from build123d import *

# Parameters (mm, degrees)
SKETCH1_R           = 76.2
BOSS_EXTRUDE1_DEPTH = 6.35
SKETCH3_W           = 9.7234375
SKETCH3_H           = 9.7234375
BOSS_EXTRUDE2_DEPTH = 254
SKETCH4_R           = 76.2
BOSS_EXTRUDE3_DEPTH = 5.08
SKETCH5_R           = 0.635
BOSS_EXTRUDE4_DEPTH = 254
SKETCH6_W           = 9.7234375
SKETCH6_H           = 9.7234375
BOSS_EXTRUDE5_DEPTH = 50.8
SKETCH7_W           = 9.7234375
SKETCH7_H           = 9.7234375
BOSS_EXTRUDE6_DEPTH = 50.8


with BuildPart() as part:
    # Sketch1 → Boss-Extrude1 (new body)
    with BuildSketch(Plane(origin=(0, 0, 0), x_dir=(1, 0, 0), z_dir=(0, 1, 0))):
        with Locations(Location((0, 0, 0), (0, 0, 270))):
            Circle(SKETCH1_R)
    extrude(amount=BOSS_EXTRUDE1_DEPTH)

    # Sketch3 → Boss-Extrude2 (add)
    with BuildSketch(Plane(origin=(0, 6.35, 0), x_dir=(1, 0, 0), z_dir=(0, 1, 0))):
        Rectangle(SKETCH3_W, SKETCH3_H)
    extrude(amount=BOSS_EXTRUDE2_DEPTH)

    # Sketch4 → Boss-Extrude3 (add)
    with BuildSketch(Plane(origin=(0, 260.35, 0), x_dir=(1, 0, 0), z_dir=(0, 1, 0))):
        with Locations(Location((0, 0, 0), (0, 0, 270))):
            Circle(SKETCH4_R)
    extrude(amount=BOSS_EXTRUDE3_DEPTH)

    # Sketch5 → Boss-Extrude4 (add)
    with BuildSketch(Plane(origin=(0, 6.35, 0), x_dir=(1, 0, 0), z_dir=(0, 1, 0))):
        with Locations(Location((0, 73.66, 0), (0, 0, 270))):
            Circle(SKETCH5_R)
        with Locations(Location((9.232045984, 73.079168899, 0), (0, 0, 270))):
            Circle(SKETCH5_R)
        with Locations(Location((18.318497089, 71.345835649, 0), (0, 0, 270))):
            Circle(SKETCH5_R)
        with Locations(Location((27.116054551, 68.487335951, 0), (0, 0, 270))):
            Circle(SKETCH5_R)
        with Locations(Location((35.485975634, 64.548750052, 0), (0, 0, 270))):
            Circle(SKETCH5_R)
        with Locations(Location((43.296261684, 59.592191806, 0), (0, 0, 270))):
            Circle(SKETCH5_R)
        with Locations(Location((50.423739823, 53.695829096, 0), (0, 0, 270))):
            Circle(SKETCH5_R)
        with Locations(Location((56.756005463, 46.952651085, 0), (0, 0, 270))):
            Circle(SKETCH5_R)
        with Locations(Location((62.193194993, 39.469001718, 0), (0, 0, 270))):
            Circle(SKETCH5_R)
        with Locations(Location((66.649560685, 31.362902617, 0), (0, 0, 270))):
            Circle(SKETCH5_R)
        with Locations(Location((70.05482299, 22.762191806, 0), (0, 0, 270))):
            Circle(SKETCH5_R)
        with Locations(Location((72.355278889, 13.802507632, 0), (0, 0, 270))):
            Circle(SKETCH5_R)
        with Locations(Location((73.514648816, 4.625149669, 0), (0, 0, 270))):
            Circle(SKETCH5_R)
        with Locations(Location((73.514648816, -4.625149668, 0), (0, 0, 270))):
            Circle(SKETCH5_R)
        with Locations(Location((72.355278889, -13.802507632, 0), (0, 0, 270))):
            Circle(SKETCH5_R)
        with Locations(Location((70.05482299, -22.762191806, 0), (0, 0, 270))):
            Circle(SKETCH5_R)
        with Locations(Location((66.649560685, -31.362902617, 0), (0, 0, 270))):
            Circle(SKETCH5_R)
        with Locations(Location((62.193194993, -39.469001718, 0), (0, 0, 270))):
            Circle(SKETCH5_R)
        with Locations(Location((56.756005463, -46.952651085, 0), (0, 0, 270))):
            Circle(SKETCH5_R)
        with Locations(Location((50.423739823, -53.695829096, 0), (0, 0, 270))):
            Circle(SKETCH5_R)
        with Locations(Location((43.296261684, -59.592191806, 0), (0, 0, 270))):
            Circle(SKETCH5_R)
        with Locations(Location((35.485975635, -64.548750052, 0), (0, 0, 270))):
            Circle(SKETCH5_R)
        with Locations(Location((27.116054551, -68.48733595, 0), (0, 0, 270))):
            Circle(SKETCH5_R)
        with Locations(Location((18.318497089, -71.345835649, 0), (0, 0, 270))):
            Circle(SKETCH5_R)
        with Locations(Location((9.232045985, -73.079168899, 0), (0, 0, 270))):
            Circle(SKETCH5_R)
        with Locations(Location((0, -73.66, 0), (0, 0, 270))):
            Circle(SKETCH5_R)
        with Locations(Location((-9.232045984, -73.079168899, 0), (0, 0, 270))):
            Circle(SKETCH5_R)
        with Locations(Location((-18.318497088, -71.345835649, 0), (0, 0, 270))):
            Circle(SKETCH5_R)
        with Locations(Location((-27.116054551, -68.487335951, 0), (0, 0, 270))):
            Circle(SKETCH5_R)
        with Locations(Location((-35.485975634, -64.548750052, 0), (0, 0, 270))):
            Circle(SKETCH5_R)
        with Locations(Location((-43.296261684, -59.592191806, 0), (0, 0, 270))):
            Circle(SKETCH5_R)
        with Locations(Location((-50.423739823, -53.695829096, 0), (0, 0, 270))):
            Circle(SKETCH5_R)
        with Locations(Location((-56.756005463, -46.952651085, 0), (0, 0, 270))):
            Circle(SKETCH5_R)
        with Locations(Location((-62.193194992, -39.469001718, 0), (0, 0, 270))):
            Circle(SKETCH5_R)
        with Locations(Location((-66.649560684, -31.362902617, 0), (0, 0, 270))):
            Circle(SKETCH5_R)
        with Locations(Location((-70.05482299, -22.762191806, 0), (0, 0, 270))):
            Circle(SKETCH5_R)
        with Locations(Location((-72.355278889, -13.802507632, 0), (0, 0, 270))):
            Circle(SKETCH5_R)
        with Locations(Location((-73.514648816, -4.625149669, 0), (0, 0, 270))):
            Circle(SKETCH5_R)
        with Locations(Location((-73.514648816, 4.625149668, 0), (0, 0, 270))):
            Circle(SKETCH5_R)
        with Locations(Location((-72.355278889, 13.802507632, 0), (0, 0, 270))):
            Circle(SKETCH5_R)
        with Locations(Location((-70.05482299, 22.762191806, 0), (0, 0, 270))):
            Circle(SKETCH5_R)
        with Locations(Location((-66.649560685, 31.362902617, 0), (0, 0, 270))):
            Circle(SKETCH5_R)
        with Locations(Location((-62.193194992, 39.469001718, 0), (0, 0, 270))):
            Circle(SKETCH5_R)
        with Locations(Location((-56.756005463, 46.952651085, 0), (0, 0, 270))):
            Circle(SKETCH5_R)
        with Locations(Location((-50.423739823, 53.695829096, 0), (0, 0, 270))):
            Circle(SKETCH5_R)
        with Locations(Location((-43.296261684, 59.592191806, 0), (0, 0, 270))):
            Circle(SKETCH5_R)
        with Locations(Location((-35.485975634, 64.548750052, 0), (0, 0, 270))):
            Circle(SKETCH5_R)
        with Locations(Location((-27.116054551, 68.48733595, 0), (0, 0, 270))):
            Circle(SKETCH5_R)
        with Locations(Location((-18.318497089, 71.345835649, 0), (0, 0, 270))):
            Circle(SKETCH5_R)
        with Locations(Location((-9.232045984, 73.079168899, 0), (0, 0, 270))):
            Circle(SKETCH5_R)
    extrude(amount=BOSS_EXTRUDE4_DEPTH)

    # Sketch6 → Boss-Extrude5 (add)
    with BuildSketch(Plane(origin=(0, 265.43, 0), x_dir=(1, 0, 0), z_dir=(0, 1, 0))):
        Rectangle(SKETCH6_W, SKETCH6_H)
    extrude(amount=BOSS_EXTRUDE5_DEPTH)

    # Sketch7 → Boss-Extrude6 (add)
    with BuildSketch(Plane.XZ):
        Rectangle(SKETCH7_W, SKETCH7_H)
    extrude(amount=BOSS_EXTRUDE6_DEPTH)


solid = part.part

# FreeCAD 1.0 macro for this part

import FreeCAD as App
import Part
import Sketcher
from FreeCAD import Vector
Q = App.Units.Quantity

doc = App.newDocument("Part")
body = doc.addObject("PartDesign::Body", "Body")

sketch1 = body.newObject("Sketcher::SketchObject", "Sketch")
sketch1.AttachmentSupport = (doc.getObject("XZ_Plane"), [""])
sketch1.MapMode = "FlatFace"
sketch1.addGeometry(Part.Circle(Vector(0, 0, 0), Vector(0, 0, 1), 76.2), False)
sketch1.addConstraint([
    Sketcher.Constraint("Coincident", 0, 3, -1, 1),
    Sketcher.Constraint("Diameter", 0, Q("6 in")),
])
pad1 = body.newObject("PartDesign::Pad", "Pad")
pad1.Profile = sketch1
pad1.Length = Q("0.25 in")
pad1.Reversed = True

sketch2 = body.newObject("Sketcher::SketchObject", "Sketch001")
sketch2.AttachmentSupport = (doc.getObject("XZ_Plane"), [""])
sketch2.MapMode = "FlatFace"
sketch2.AttachmentOffset = App.Placement(Vector(0, 0, -0.25 * 25.4), App.Rotation())
sketch2.addGeometry([
    Part.LineSegment(Vector(-4.861719, -4.861719, 0), Vector(-4.861719, 4.861719, 0)),
    Part.LineSegment(Vector(-4.861719, 4.861719, 0), Vector(4.861719, 4.861719, 0)),
    Part.LineSegment(Vector(4.861719, 4.861719, 0), Vector(4.861719, -4.861719, 0)),
    Part.LineSegment(Vector(4.861719, -4.861719, 0), Vector(-4.861719, -4.861719, 0)),
], False)
sketch2.addConstraint([
    Sketcher.Constraint("Coincident", 0, 2, 1, 1),
    Sketcher.Constraint("Coincident", 1, 2, 2, 1),
    Sketcher.Constraint("Coincident", 2, 2, 3, 1),
    Sketcher.Constraint("Coincident", 3, 2, 0, 1),
    Sketcher.Constraint("Vertical", 0),
    Sketcher.Constraint("Horizontal", 1),
    Sketcher.Constraint("Vertical", 2),
    Sketcher.Constraint("Horizontal", 3),
    Sketcher.Constraint("Symmetric", 0, 2, 2, 2, -1, 1),
    Sketcher.Constraint("Equal", 3, 0),
    Sketcher.Constraint("DistanceX", 1, 1, 1, 2, Q("9.723437 mm")),
])
pad2 = body.newObject("PartDesign::Pad", "Pad001")
pad2.Profile = sketch2
pad2.Length = Q("10 in")
pad2.Reversed = True

sketch3 = body.newObject("Sketcher::SketchObject", "Sketch002")
sketch3.AttachmentSupport = (doc.getObject("XZ_Plane"), [""])
sketch3.MapMode = "FlatFace"
sketch3.AttachmentOffset = App.Placement(Vector(0, 0, -10.25 * 25.4), App.Rotation())
sketch3.addGeometry(Part.Circle(Vector(0, 0, 0), Vector(0, 0, 1), 76.2), False)
sketch3.addConstraint([
    Sketcher.Constraint("Coincident", 0, 3, -1, 1),
    Sketcher.Constraint("Diameter", 0, Q("6 in")),
])
pad3 = body.newObject("PartDesign::Pad", "Pad002")
pad3.Profile = sketch3
pad3.Length = Q("0.2 in")
pad3.Reversed = True

sketch4 = body.newObject("Sketcher::SketchObject", "Sketch003")
sketch4.AttachmentSupport = (doc.getObject("XZ_Plane"), [""])
sketch4.MapMode = "FlatFace"
sketch4.AttachmentOffset = App.Placement(Vector(0, 0, -0.25 * 25.4), App.Rotation())
sketch4.addGeometry([
    Part.Circle(Vector(0, -73.66, 0), Vector(0, 0, 1), 0.635),
    Part.Circle(Vector(9.232046, -73.079169, 0), Vector(0, 0, 1), 0.635),
    Part.Circle(Vector(18.318497, -71.345836, 0), Vector(0, 0, 1), 0.635),
    Part.Circle(Vector(27.116055, -68.487336, 0), Vector(0, 0, 1), 0.635),
    Part.Circle(Vector(35.485976, -64.54875, 0), Vector(0, 0, 1), 0.635),
    Part.Circle(Vector(43.296262, -59.592192, 0), Vector(0, 0, 1), 0.635),
    Part.Circle(Vector(50.42374, -53.695829, 0), Vector(0, 0, 1), 0.635),
    Part.Circle(Vector(56.756005, -46.952651, 0), Vector(0, 0, 1), 0.635),
    Part.Circle(Vector(62.193195, -39.469002, 0), Vector(0, 0, 1), 0.635),
    Part.Circle(Vector(66.649561, -31.362903, 0), Vector(0, 0, 1), 0.635),
    Part.Circle(Vector(70.054823, -22.762192, 0), Vector(0, 0, 1), 0.635),
    Part.Circle(Vector(72.355279, -13.802508, 0), Vector(0, 0, 1), 0.635),
    Part.Circle(Vector(73.514649, -4.62515, 0), Vector(0, 0, 1), 0.635),
    Part.Circle(Vector(73.514649, 4.62515, 0), Vector(0, 0, 1), 0.635),
    Part.Circle(Vector(72.355279, 13.802508, 0), Vector(0, 0, 1), 0.635),
    Part.Circle(Vector(70.054823, 22.762192, 0), Vector(0, 0, 1), 0.635),
    Part.Circle(Vector(66.649561, 31.362903, 0), Vector(0, 0, 1), 0.635),
    Part.Circle(Vector(62.193195, 39.469002, 0), Vector(0, 0, 1), 0.635),
    Part.Circle(Vector(56.756005, 46.952651, 0), Vector(0, 0, 1), 0.635),
    Part.Circle(Vector(50.42374, 53.695829, 0), Vector(0, 0, 1), 0.635),
    Part.Circle(Vector(43.296262, 59.592192, 0), Vector(0, 0, 1), 0.635),
    Part.Circle(Vector(35.485976, 64.54875, 0), Vector(0, 0, 1), 0.635),
    Part.Circle(Vector(27.116055, 68.487336, 0), Vector(0, 0, 1), 0.635),
    Part.Circle(Vector(18.318497, 71.345836, 0), Vector(0, 0, 1), 0.635),
    Part.Circle(Vector(9.232046, 73.079169, 0), Vector(0, 0, 1), 0.635),
    Part.Circle(Vector(0, 73.66, 0), Vector(0, 0, 1), 0.635),
    Part.Circle(Vector(-9.232046, 73.079169, 0), Vector(0, 0, 1), 0.635),
    Part.Circle(Vector(-18.318497, 71.345836, 0), Vector(0, 0, 1), 0.635),
    Part.Circle(Vector(-27.116055, 68.487336, 0), Vector(0, 0, 1), 0.635),
    Part.Circle(Vector(-35.485976, 64.54875, 0), Vector(0, 0, 1), 0.635),
    Part.Circle(Vector(-43.296262, 59.592192, 0), Vector(0, 0, 1), 0.635),
    Part.Circle(Vector(-50.42374, 53.695829, 0), Vector(0, 0, 1), 0.635),
    Part.Circle(Vector(-56.756005, 46.952651, 0), Vector(0, 0, 1), 0.635),
    Part.Circle(Vector(-62.193195, 39.469002, 0), Vector(0, 0, 1), 0.635),
    Part.Circle(Vector(-66.649561, 31.362903, 0), Vector(0, 0, 1), 0.635),
    Part.Circle(Vector(-70.054823, 22.762192, 0), Vector(0, 0, 1), 0.635),
    Part.Circle(Vector(-72.355279, 13.802508, 0), Vector(0, 0, 1), 0.635),
    Part.Circle(Vector(-73.514649, 4.62515, 0), Vector(0, 0, 1), 0.635),
    Part.Circle(Vector(-73.514649, -4.62515, 0), Vector(0, 0, 1), 0.635),
    Part.Circle(Vector(-72.355279, -13.802508, 0), Vector(0, 0, 1), 0.635),
    Part.Circle(Vector(-70.054823, -22.762192, 0), Vector(0, 0, 1), 0.635),
    Part.Circle(Vector(-66.649561, -31.362903, 0), Vector(0, 0, 1), 0.635),
    Part.Circle(Vector(-62.193195, -39.469002, 0), Vector(0, 0, 1), 0.635),
    Part.Circle(Vector(-56.756005, -46.952651, 0), Vector(0, 0, 1), 0.635),
    Part.Circle(Vector(-50.42374, -53.695829, 0), Vector(0, 0, 1), 0.635),
    Part.Circle(Vector(-43.296262, -59.592192, 0), Vector(0, 0, 1), 0.635),
    Part.Circle(Vector(-35.485976, -64.54875, 0), Vector(0, 0, 1), 0.635),
    Part.Circle(Vector(-27.116055, -68.487336, 0), Vector(0, 0, 1), 0.635),
    Part.Circle(Vector(-18.318497, -71.345836, 0), Vector(0, 0, 1), 0.635),
    Part.Circle(Vector(-9.232046, -73.079169, 0), Vector(0, 0, 1), 0.635),
], False)
sketch4.addConstraint([
    Sketcher.Constraint("Equal", 0, 1),
    Sketcher.Constraint("Equal", 1, 2),
    Sketcher.Constraint("Equal", 2, 3),
    Sketcher.Constraint("Equal", 3, 4),
    Sketcher.Constraint("Equal", 4, 5),
    Sketcher.Constraint("Equal", 5, 6),
    Sketcher.Constraint("Equal", 6, 7),
    Sketcher.Constraint("Equal", 7, 8),
    Sketcher.Constraint("Equal", 8, 9),
    Sketcher.Constraint("Equal", 9, 10),
    Sketcher.Constraint("Equal", 10, 11),
    Sketcher.Constraint("Equal", 11, 12),
    Sketcher.Constraint("Equal", 12, 13),
    Sketcher.Constraint("Equal", 13, 14),
    Sketcher.Constraint("Equal", 14, 15),
    Sketcher.Constraint("Equal", 15, 16),
    Sketcher.Constraint("Equal", 16, 17),
    Sketcher.Constraint("Equal", 17, 18),
    Sketcher.Constraint("Equal", 18, 19),
    Sketcher.Constraint("Equal", 19, 20),
    Sketcher.Constraint("Equal", 20, 21),
    Sketcher.Constraint("Equal", 21, 22),
    Sketcher.Constraint("Equal", 22, 23),
    Sketcher.Constraint("Equal", 23, 24),
    Sketcher.Constraint("Equal", 24, 25),
    Sketcher.Constraint("Equal", 25, 26),
    Sketcher.Constraint("Equal", 26, 27),
    Sketcher.Constraint("Equal", 27, 28),
    Sketcher.Constraint("Equal", 28, 29),
    Sketcher.Constraint("Equal", 29, 30),
    Sketcher.Constraint("Equal", 30, 31),
    Sketcher.Constraint("Equal", 31, 32),
    Sketcher.Constraint("Equal", 32, 33),
    Sketcher.Constraint("Equal", 33, 34),
    Sketcher.Constraint("Equal", 34, 35),
    Sketcher.Constraint("Equal", 35, 36),
    Sketcher.Constraint("Equal", 36, 37),
    Sketcher.Constraint("Equal", 37, 38),
    Sketcher.Constraint("Equal", 38, 39),
    Sketcher.Constraint("Equal", 39, 40),
    Sketcher.Constraint("Equal", 40, 41),
    Sketcher.Constraint("Equal", 41, 42),
    Sketcher.Constraint("Equal", 42, 43),
    Sketcher.Constraint("Equal", 43, 44),
    Sketcher.Constraint("Equal", 44, 45),
    Sketcher.Constraint("Equal", 45, 46),
    Sketcher.Constraint("Equal", 46, 47),
    Sketcher.Constraint("Equal", 47, 48),
    Sketcher.Constraint("Equal", 48, 49),
    Sketcher.Constraint("Symmetric", 0, 3, 25, 3, -1, 1),
    Sketcher.Constraint("Symmetric", 1, 3, 26, 3, -1, 1),
    Sketcher.Constraint("Symmetric", 2, 3, 27, 3, -1, 1),
    Sketcher.Constraint("Symmetric", 3, 3, 28, 3, -1, 1),
    Sketcher.Constraint("Symmetric", 4, 3, 29, 3, -1, 1),
    Sketcher.Constraint("Symmetric", 5, 3, 30, 3, -1, 1),
    Sketcher.Constraint("Symmetric", 6, 3, 31, 3, -1, 1),
    Sketcher.Constraint("Symmetric", 7, 3, 32, 3, -1, 1),
    Sketcher.Constraint("Symmetric", 8, 3, 33, 3, -1, 1),
    Sketcher.Constraint("Symmetric", 9, 3, 34, 3, -1, 1),
    Sketcher.Constraint("Symmetric", 10, 3, 35, 3, -1, 1),
    Sketcher.Constraint("Symmetric", 11, 3, 36, 3, -1, 1),
    Sketcher.Constraint("Symmetric", 12, 3, 37, 3, -1, 1),
    Sketcher.Constraint("Symmetric", 13, 3, 38, 3, -1, 1),
    Sketcher.Constraint("Symmetric", 14, 3, 39, 3, -1, 1),
    Sketcher.Constraint("Symmetric", 15, 3, 40, 3, -1, 1),
    Sketcher.Constraint("Symmetric", 16, 3, 41, 3, -1, 1),
    Sketcher.Constraint("Symmetric", 17, 3, 42, 3, -1, 1),
    Sketcher.Constraint("Symmetric", 18, 3, 43, 3, -1, 1),
    Sketcher.Constraint("Symmetric", 19, 3, 44, 3, -1, 1),
    Sketcher.Constraint("Symmetric", 20, 3, 45, 3, -1, 1),
    Sketcher.Constraint("Symmetric", 21, 3, 46, 3, -1, 1),
    Sketcher.Constraint("Symmetric", 22, 3, 47, 3, -1, 1),
    Sketcher.Constraint("Symmetric", 23, 3, 48, 3, -1, 1),
    Sketcher.Constraint("Symmetric", 24, 3, 49, 3, -1, 1),
    Sketcher.Constraint("Symmetric", 24, 3, 26, 3, -2),
    Sketcher.Constraint("Symmetric", 23, 3, 27, 3, -2),
    Sketcher.Constraint("Symmetric", 22, 3, 28, 3, -2),
    Sketcher.Constraint("Symmetric", 21, 3, 29, 3, -2),
    Sketcher.Constraint("Symmetric", 20, 3, 30, 3, -2),
    Sketcher.Constraint("Symmetric", 19, 3, 31, 3, -2),
    Sketcher.Constraint("Symmetric", 18, 3, 32, 3, -2),
    Sketcher.Constraint("Symmetric", 17, 3, 33, 3, -2),
    Sketcher.Constraint("Symmetric", 16, 3, 34, 3, -2),
    Sketcher.Constraint("Symmetric", 15, 3, 35, 3, -2),
    Sketcher.Constraint("Symmetric", 14, 3, 36, 3, -2),
    Sketcher.Constraint("Symmetric", 13, 3, 37, 3, -2),
    Sketcher.Constraint("PointOnObject", 0, 3, -2),
    Sketcher.Constraint("Diameter", 0, Q("0.05 in")),
    Sketcher.Constraint("DistanceY", 0, 3, -1, 1, Q("2.9 in")),
    Sketcher.Constraint("DistanceY", 5, 3, 10, 3, Q("1.45 in")),
    Sketcher.Constraint("DistanceY", 8, 3, -1, 1, Q("39.469002 mm")),
    Sketcher.Constraint("DistanceY", 2, 3, 3, 3, Q("2.8585 mm")),
    Sketcher.Constraint("DistanceY", 4, 3, 7, 3, Q("17.596099 mm")),
    Sketcher.Constraint("DistanceY", 8, 3, 9, 3, Q("8.106099 mm")),
    Sketcher.Constraint("DistanceX", 5, 3, 9, 3, Q("23.353299 mm")),
    Sketcher.Constraint("DistanceY", 7, 3, 12, 3, Q("42.327501 mm")),
    Sketcher.Constraint("DistanceY", 12, 3, 13, 3, Q("9.250299 mm")),
    Sketcher.Constraint("DistanceY", 10, 3, 14, 3, Q("36.564699 mm")),
    Sketcher.Constraint("DistanceX", 26, 3, 22, 3, Q("36.348101 mm")),
    Sketcher.Constraint("DistanceY", 1, 3, -1, 1, Q("73.079169 mm")),
    Sketcher.Constraint("DistanceX", -1, 1, 5, 3, Q("43.296262 mm")),
    Sketcher.Constraint("DistanceY", 5, 3, -1, 1, Q("59.592192 mm")),
    Sketcher.Constraint("DistanceX", -1, 1, 6, 3, Q("50.42374 mm")),
    Sketcher.Constraint("DistanceY", 6, 3, -1, 1, Q("53.695829 mm")),
    Sketcher.Constraint("DistanceX", -1, 1, 11, 3, Q("72.355279 mm")),
    Sketcher.Constraint("DistanceX", -1, 1, 12, 3, Q("73.514649 mm")),
    Sketcher.Constraint("DistanceX", 1, 3, 2, 3, Q("9.086451 mm")),
    Sketcher.Constraint("DistanceX", 1, 3, 3, 3, Q("17.884009 mm")),
    Sketcher.Constraint("DistanceX", 3, 3, 4, 3, Q("8.369921 mm")),
    Sketcher.Constraint("DistanceX", 4, 3, 7, 3, Q("21.27003 mm")),
    Sketcher.Constraint("DistanceX", 7, 3, 8, 3, Q("5.43719 mm")),
    Sketcher.Constraint("DistanceX", 5, 3, 10, 3, Q("26.758561 mm")),
    Sketcher.Constraint("DistanceY", 2, 3, -1, 1, Q("71.345836 mm")),
])
pad4 = body.newObject("PartDesign::Pad", "Pad003")
pad4.Profile = sketch4
pad4.Length = Q("10 in")
pad4.Reversed = True

sketch5 = body.newObject("Sketcher::SketchObject", "Sketch004")
sketch5.AttachmentSupport = (doc.getObject("XZ_Plane"), [""])
sketch5.MapMode = "FlatFace"
sketch5.AttachmentOffset = App.Placement(Vector(0, 0, -10.45 * 25.4), App.Rotation())
sketch5.addGeometry([
    Part.LineSegment(Vector(-4.861719, -4.861719, 0), Vector(-4.861719, 4.861719, 0)),
    Part.LineSegment(Vector(-4.861719, 4.861719, 0), Vector(4.861719, 4.861719, 0)),
    Part.LineSegment(Vector(4.861719, 4.861719, 0), Vector(4.861719, -4.861719, 0)),
    Part.LineSegment(Vector(4.861719, -4.861719, 0), Vector(-4.861719, -4.861719, 0)),
], False)
sketch5.addConstraint([
    Sketcher.Constraint("Coincident", 0, 2, 1, 1),
    Sketcher.Constraint("Coincident", 1, 2, 2, 1),
    Sketcher.Constraint("Coincident", 2, 2, 3, 1),
    Sketcher.Constraint("Coincident", 3, 2, 0, 1),
    Sketcher.Constraint("Vertical", 0),
    Sketcher.Constraint("Horizontal", 1),
    Sketcher.Constraint("Vertical", 2),
    Sketcher.Constraint("Horizontal", 3),
    Sketcher.Constraint("Symmetric", 0, 2, 2, 2, -1, 1),
    Sketcher.Constraint("Equal", 3, 0),
    Sketcher.Constraint("DistanceX", 1, 1, 1, 2, Q("9.723437 mm")),
])
pad5 = body.newObject("PartDesign::Pad", "Pad004")
pad5.Profile = sketch5
pad5.Length = Q("2 in")
pad5.Reversed = True

sketch6 = body.newObject("Sketcher::SketchObject", "Sketch005")
sketch6.AttachmentSupport = (doc.getObject("XZ_Plane"), [""])
sketch6.MapMode = "FlatFace"
sketch6.addGeometry([
    Part.LineSegment(Vector(-4.861719, 4.861719, 0), Vector(-4.861719, -4.861719, 0)),
    Part.LineSegment(Vector(-4.861719, -4.861719, 0), Vector(4.861719, -4.861719, 0)),
    Part.LineSegment(Vector(4.861719, -4.861719, 0), Vector(4.861719, 4.861719, 0)),
    Part.LineSegment(Vector(4.861719, 4.861719, 0), Vector(-4.861719, 4.861719, 0)),
], False)
sketch6.addConstraint([
    Sketcher.Constraint("Coincident", 0, 2, 1, 1),
    Sketcher.Constraint("Coincident", 1, 2, 2, 1),
    Sketcher.Constraint("Coincident", 2, 2, 3, 1),
    Sketcher.Constraint("Coincident", 3, 2, 0, 1),
    Sketcher.Constraint("Vertical", 0),
    Sketcher.Constraint("Horizontal", 1),
    Sketcher.Constraint("Vertical", 2),
    Sketcher.Constraint("Horizontal", 3),
    Sketcher.Constraint("Symmetric", 0, 2, 2, 2, -1, 1),
    Sketcher.Constraint("Equal", 3, 0),
    Sketcher.Constraint("DistanceX", 1, 1, 1, 2, Q("9.723437 mm")),
])
pad6 = body.newObject("PartDesign::Pad", "Pad005")
pad6.Profile = sketch6
pad6.Length = Q("2 in")

doc.recompute()
